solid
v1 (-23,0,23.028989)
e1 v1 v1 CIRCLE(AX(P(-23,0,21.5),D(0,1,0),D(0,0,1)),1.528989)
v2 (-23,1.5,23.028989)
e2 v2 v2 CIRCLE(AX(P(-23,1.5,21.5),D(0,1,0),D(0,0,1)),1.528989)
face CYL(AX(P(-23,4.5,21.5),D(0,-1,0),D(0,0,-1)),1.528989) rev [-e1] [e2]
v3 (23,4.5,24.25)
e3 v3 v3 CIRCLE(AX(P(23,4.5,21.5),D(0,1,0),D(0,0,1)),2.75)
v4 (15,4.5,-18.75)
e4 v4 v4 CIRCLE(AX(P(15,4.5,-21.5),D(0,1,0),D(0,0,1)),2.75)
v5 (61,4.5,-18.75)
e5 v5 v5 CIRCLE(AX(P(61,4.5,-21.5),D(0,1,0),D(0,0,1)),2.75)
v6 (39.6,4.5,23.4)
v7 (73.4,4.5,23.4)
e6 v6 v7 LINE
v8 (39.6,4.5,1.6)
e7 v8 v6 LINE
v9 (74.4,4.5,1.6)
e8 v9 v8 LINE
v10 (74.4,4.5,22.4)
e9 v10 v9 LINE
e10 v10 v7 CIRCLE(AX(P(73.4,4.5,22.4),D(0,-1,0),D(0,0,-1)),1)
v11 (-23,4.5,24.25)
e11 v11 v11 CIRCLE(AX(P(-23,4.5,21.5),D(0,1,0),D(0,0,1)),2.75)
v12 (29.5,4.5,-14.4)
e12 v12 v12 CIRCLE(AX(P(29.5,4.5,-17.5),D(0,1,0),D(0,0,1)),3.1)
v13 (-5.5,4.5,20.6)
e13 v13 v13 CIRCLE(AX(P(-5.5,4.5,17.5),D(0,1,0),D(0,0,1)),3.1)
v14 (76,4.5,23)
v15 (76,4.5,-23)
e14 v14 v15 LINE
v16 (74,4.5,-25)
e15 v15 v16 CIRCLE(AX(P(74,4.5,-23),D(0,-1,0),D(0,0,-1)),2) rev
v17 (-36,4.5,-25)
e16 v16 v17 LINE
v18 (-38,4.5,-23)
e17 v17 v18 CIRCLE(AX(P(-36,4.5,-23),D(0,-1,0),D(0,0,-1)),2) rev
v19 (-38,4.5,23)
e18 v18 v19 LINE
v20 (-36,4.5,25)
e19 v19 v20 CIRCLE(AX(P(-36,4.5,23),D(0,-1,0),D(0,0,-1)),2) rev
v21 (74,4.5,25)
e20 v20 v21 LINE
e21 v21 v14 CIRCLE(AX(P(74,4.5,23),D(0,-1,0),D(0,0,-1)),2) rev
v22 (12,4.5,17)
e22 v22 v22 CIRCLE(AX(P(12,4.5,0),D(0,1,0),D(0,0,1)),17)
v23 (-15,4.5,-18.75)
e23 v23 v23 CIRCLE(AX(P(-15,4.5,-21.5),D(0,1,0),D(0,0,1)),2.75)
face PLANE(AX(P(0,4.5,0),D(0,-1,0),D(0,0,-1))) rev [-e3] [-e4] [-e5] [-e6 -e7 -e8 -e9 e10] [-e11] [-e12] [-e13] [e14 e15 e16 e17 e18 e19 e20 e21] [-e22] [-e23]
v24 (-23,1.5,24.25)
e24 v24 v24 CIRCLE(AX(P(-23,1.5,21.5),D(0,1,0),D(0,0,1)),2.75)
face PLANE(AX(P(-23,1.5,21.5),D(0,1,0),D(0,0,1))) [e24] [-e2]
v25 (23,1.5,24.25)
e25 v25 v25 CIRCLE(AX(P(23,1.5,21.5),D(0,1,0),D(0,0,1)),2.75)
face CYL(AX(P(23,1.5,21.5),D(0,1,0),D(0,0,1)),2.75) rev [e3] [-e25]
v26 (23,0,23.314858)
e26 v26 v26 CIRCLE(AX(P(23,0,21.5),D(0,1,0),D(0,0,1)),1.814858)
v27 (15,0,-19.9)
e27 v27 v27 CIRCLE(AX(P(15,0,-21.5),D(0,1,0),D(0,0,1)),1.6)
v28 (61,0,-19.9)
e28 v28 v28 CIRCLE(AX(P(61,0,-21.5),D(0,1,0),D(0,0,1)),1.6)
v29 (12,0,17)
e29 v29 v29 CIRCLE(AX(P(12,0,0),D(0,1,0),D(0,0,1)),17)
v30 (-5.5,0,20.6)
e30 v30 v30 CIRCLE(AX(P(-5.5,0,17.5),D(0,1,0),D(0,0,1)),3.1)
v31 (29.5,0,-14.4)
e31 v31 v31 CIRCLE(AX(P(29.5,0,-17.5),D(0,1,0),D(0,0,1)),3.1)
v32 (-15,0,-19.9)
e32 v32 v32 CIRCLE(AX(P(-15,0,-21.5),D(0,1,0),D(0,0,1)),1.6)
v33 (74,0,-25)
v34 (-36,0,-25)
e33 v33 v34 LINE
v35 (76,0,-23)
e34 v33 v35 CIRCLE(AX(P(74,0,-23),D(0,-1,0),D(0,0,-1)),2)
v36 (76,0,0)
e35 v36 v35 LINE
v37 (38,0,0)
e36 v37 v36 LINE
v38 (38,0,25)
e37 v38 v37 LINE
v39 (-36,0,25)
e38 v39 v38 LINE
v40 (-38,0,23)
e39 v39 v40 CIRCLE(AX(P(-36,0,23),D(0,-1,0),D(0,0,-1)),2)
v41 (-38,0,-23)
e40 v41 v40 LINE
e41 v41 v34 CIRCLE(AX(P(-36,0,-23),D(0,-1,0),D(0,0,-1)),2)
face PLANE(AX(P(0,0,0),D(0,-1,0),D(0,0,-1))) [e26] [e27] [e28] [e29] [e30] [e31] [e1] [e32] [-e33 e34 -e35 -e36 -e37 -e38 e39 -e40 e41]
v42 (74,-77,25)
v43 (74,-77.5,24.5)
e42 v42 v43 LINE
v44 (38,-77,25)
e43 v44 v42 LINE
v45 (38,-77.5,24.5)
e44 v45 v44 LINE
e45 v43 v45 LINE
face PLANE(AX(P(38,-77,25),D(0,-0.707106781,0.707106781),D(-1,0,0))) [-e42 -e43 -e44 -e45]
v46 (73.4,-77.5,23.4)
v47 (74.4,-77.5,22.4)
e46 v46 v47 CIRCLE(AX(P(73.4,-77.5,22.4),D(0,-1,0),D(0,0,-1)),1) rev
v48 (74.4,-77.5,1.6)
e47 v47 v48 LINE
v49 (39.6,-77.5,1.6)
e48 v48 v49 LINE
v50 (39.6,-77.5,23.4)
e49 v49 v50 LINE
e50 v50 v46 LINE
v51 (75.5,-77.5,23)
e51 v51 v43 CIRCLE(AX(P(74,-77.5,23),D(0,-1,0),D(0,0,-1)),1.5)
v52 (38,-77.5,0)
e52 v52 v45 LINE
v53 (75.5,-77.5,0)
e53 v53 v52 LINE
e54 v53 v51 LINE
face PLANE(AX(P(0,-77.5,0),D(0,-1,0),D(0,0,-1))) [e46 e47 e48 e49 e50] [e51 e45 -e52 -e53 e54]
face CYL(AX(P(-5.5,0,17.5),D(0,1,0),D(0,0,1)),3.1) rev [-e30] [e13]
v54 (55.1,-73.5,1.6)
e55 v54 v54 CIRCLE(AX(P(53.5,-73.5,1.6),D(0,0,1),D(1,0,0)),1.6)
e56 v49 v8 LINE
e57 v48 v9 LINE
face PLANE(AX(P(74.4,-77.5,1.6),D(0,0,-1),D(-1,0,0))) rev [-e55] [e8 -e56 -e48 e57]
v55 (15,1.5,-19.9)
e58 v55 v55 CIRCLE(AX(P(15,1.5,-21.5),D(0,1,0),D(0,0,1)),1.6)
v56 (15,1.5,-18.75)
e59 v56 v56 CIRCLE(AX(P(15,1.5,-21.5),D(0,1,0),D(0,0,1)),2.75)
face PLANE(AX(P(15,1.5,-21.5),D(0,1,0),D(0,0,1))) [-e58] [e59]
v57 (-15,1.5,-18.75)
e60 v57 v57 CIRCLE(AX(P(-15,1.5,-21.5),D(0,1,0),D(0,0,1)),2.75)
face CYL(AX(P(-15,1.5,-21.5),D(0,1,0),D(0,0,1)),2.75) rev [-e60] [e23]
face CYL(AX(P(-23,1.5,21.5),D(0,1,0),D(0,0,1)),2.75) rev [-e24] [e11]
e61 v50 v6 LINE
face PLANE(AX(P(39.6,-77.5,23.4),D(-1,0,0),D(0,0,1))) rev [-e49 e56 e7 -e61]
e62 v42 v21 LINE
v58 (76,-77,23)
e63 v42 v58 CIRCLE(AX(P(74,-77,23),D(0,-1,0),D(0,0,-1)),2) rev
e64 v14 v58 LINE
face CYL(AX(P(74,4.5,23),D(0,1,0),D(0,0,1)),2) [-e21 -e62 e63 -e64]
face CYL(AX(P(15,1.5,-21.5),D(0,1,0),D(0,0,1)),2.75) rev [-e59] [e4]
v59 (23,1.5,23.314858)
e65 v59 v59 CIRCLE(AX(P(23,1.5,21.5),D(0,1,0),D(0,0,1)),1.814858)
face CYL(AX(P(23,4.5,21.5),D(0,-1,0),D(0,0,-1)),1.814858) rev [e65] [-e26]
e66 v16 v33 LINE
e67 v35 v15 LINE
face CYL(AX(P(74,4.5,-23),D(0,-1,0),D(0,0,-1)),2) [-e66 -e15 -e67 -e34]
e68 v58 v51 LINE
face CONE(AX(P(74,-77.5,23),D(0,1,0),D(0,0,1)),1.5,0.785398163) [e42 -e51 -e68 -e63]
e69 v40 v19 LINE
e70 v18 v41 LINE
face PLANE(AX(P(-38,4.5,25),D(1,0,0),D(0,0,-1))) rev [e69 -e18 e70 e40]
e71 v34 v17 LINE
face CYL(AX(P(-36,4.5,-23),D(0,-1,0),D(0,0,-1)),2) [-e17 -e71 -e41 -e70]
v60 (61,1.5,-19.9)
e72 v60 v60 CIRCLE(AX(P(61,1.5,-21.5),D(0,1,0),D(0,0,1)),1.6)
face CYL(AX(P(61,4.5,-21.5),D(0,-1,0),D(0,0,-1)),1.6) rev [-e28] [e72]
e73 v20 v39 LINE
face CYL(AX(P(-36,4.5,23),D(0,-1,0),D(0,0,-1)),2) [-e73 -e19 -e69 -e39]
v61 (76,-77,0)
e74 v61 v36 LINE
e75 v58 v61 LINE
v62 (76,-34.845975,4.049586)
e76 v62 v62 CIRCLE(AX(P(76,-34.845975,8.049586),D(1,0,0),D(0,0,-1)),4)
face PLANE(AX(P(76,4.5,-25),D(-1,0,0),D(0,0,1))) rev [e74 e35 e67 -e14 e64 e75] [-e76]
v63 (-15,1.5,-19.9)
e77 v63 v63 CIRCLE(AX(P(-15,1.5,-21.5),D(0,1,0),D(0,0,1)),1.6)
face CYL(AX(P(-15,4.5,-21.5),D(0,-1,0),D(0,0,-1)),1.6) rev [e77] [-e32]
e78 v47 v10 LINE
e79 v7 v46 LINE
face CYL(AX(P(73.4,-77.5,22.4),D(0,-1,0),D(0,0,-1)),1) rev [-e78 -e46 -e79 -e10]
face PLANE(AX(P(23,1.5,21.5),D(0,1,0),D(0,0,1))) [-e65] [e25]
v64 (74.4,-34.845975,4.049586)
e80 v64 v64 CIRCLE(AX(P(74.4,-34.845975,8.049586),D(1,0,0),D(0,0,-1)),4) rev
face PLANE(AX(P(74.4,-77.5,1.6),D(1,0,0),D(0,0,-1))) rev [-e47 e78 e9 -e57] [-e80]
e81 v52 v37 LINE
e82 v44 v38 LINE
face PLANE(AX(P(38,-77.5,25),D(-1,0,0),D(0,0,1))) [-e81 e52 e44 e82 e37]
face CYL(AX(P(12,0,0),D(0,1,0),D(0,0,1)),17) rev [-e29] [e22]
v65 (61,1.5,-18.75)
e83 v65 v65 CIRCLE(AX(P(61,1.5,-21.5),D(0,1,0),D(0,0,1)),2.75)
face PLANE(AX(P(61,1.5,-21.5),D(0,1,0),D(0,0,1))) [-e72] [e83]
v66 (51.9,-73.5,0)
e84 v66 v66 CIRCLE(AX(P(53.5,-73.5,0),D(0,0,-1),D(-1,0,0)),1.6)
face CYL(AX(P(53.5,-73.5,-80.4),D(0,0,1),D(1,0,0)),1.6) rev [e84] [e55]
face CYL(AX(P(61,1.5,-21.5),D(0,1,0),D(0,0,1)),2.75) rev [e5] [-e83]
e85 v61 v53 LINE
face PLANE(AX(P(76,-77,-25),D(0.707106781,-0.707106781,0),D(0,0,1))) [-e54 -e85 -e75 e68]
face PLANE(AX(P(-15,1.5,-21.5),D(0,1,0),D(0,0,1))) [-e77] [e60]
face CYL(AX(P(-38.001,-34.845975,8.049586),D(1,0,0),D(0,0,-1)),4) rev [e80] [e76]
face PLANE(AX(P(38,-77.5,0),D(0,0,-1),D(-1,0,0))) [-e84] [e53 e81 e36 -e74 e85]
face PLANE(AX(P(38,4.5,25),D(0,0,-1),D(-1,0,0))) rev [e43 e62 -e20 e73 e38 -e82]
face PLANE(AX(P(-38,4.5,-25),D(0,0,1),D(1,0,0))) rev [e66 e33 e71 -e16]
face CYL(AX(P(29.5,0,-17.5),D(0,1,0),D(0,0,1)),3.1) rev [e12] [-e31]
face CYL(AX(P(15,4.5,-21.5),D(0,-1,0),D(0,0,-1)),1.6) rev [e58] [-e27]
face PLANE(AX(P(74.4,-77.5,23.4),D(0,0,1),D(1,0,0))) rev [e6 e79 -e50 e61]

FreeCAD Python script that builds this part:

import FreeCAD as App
import Part
import Sketcher


def edges_at(feature, points):
    """Names of the edges that pass closest to the given points."""
    edges = feature.Shape.Edges
    near = lambda p: min(range(len(edges)), key=lambda i: edges[i].distToShape(Part.Vertex(*p))[0])
    return sorted({f"Edge{near(p) + 1}" for p in points})

doc = App.newDocument("Part")
body = doc.addObject("PartDesign::Body", "Body")

sketch1 = body.newObject("Sketcher::SketchObject", "Sketch")
sketch1.AttachmentSupport = (doc.getObject("XZ_Plane"), [""])
sketch1.MapMode = "FlatFace"
sketch1.addGeometry(Part.LineSegment(App.Vector(76, 0, 0), App.Vector(76, -25, 0)), False)
sketch1.addGeometry(Part.LineSegment(App.Vector(76, -25, 0), App.Vector(-38, -25, 0)), False)
sketch1.addGeometry(Part.LineSegment(App.Vector(-38, -25, 0), App.Vector(-38, 25, 0)), False)
sketch1.addGeometry(Part.LineSegment(App.Vector(-38, 25, 0), App.Vector(38, 25, 0)), False)
sketch1.addGeometry(Part.LineSegment(App.Vector(38, 25, 0), App.Vector(38, 0, 0)), False)
sketch1.addGeometry(Part.LineSegment(App.Vector(38, 0, 0), App.Vector(76, 0, 0)), False)
sketch1.addGeometry(Part.Circle(App.Vector(23, 21.5, 0), App.Vector(0, 0, 1), 1.8), False)
sketch1.addGeometry(Part.Circle(App.Vector(-23, 21.5, 0), App.Vector(0, 0, 1), 1.5), False)
sketch1.addGeometry(Part.Circle(App.Vector(61, -21.5, 0), App.Vector(0, 0, 1), 1.6), False)
sketch1.addGeometry(Part.Circle(App.Vector(15, -21.5, 0), App.Vector(0, 0, 1), 1.6), False)
sketch1.addGeometry(Part.Circle(App.Vector(-15, -21.5, 0), App.Vector(0, 0, 1), 1.6), False)
sketch1.addConstraint(Sketcher.Constraint("Coincident", 0, 2, 1, 1))
sketch1.addConstraint(Sketcher.Constraint("Coincident", 1, 2, 2, 1))
sketch1.addConstraint(Sketcher.Constraint("Coincident", 2, 2, 3, 1))
sketch1.addConstraint(Sketcher.Constraint("Coincident", 3, 2, 4, 1))
sketch1.addConstraint(Sketcher.Constraint("Coincident", 4, 2, 5, 1))
sketch1.addConstraint(Sketcher.Constraint("Coincident", 5, 2, 0, 1))
sketch1.addConstraint(Sketcher.Constraint("Vertical", 0))
sketch1.addConstraint(Sketcher.Constraint("Horizontal", 1))
sketch1.addConstraint(Sketcher.Constraint("Vertical", 2))
sketch1.addConstraint(Sketcher.Constraint("Horizontal", 3))
sketch1.addConstraint(Sketcher.Constraint("Vertical", 4))
sketch1.addConstraint(Sketcher.Constraint("Horizontal", 5))
sketch1.addConstraint(Sketcher.Constraint("Equal", 8, 9))
sketch1.addConstraint(Sketcher.Constraint("Equal", 9, 10))
sketch1.addConstraint(Sketcher.Constraint("Symmetric", 1, 2, 3, 2, -1, 1))
sketch1.addConstraint(Sketcher.Constraint("Symmetric", 6, 3, 7, 3, -2))
sketch1.addConstraint(Sketcher.Constraint("Symmetric", 9, 3, 10, 3, -2))
sketch1.addConstraint(Sketcher.Constraint("PointOnObject", 4, 2, -1))
sketch1.addConstraint(Sketcher.Constraint("Horizontal", 8, 3, 9, 3))
sketch1.addConstraint(Sketcher.Constraint("Diameter", 8, 3.2))
sketch1.addConstraint(Sketcher.Constraint("DistanceX", 1, 2, 1, 1, 114.0))
sketch1.addConstraint(Sketcher.Constraint("DistanceX", 3, 1, 3, 2, 76.0))
sketch1.addConstraint(Sketcher.Constraint("DistanceY", 0, 2, 0, 1, 25.0))
sketch1.addConstraint(Sketcher.Constraint("DistanceX", -1, 1, 6, 3, 23.0))
sketch1.addConstraint(Sketcher.Constraint("DistanceX", -1, 1, 8, 3, 61.0))
sketch1.addConstraint(Sketcher.Constraint("DistanceX", -1, 1, 9, 3, 15.0))
sketch1.addConstraint(Sketcher.Constraint("DistanceY", 8, 3, 6, 3, 43.0))
sketch1.addConstraint(Sketcher.Constraint("DistanceY", -1, 1, 6, 3, 21.5))
sketch1.addConstraint(Sketcher.Constraint("Diameter", 7, 3.057978))
sketch1.addConstraint(Sketcher.Constraint("Diameter", 6, 3.629717))
pad1 = body.newObject("PartDesign::Pad", "Pad")
pad1.Profile = sketch1
pad1.Length = 4.5
pad1.Reversed = True

sketch2 = body.newObject("Sketcher::SketchObject", "Sketch001")
sketch2.AttachmentSupport = (doc.getObject("XZ_Plane"), [""])
sketch2.MapMode = "FlatFace"
sketch2.AttachmentOffset = App.Placement(App.Vector(0, 0, -4.5), App.Rotation())
sketch2.addGeometry(Part.Circle(App.Vector(29.5, -17.5, 0), App.Vector(0, 0, 1), 3.1), False)
sketch2.addGeometry(Part.Circle(App.Vector(-5.5, 17.5, 0), App.Vector(0, 0, 1), 3.1), False)
sketch2.addGeometry(Part.Circle(App.Vector(12, 0, 0), App.Vector(0, 0, 1), 17), False)
sketch2.addConstraint(Sketcher.Constraint("Equal", 0, 1))
sketch2.addConstraint(Sketcher.Constraint("PointOnObject", 2, 3, -1))
sketch2.addConstraint(Sketcher.Constraint("Diameter", 2, 34.0))
sketch2.addConstraint(Sketcher.Constraint("Diameter", 0, 6.2))
sketch2.addConstraint(Sketcher.Constraint("DistanceX", -1, 1, 2, 3, 12.0))
sketch2.addConstraint(Sketcher.Constraint("DistanceX", 1, 3, 0, 3, 35.0))
sketch2.addConstraint(Sketcher.Constraint("DistanceY", 0, 3, 1, 3, 35.0))
sketch2.addConstraint(Sketcher.Constraint("DistanceX", -1, 1, 0, 3, 29.5))
sketch2.addConstraint(Sketcher.Constraint("DistanceY", 0, 3, -1, 1, 17.5))
pocket1 = body.newObject("PartDesign::Pocket", "Pocket")
pocket1.Profile = sketch2
pocket1.Type = "ThroughAll"
pocket1.Reversed = True

sketch3 = body.newObject("Sketcher::SketchObject", "Sketch002")
sketch3.AttachmentSupport = (doc.getObject("XZ_Plane"), [""])
sketch3.MapMode = "FlatFace"
sketch3.AttachmentOffset = App.Placement(App.Vector(0, 0, -4.5), App.Rotation())
sketch3.addGeometry(Part.Circle(App.Vector(-15, -21.5, 0), App.Vector(0, 0, 1), 2.8), False)
sketch3.addGeometry(Part.Circle(App.Vector(15, -21.5, 0), App.Vector(0, 0, 1), 2.8), False)
sketch3.addGeometry(Part.Circle(App.Vector(61, -21.5, 0), App.Vector(0, 0, 1), 2.8), False)
sketch3.addGeometry(Part.Circle(App.Vector(23, 21.5, 0), App.Vector(0, 0, 1), 2.8), False)
sketch3.addGeometry(Part.Circle(App.Vector(-23, 21.5, 0), App.Vector(0, 0, 1), 2.8), False)
sketch3.addConstraint(Sketcher.Constraint("Equal", 0, 1))
sketch3.addConstraint(Sketcher.Constraint("Equal", 1, 2))
sketch3.addConstraint(Sketcher.Constraint("Equal", 2, 3))
sketch3.addConstraint(Sketcher.Constraint("Equal", 3, 4))
sketch3.addConstraint(Sketcher.Constraint("Symmetric", 0, 3, 1, 3, -2))
sketch3.addConstraint(Sketcher.Constraint("Symmetric", 3, 3, 4, 3, -2))
sketch3.addConstraint(Sketcher.Constraint("Horizontal", 1, 3, 2, 3))
sketch3.addConstraint(Sketcher.Constraint("Diameter", 0, 5.5))
sketch3.addConstraint(Sketcher.Constraint("DistanceX", 0, 3, -1, 1, 15.0))
sketch3.addConstraint(Sketcher.Constraint("DistanceX", -1, 1, 2, 3, 61.0))
sketch3.addConstraint(Sketcher.Constraint("DistanceX", -1, 1, 3, 3, 23.0))
sketch3.addConstraint(Sketcher.Constraint("DistanceY", 1, 3, 3, 3, 43.0))
sketch3.addConstraint(Sketcher.Constraint("DistanceY", 0, 3, -1, 1, 21.5))
pocket2 = body.newObject("PartDesign::Pocket", "Pocket001")
pocket2.Profile = sketch3
pocket2.Length = 3
pocket2.Reversed = True

sketch4 = body.newObject("Sketcher::SketchObject", "Sketch003")
sketch4.AttachmentSupport = (doc.getObject("XZ_Plane"), [""])
sketch4.MapMode = "FlatFace"
sketch4.AttachmentOffset = App.Placement(App.Vector(0, 0, -4.5), App.Rotation())
sketch4.addGeometry(Part.LineSegment(App.Vector(38, 0, 0), App.Vector(38, 25, 0)), False)
sketch4.addGeometry(Part.LineSegment(App.Vector(38, 25, 0), App.Vector(76, 25, 0)), False)
sketch4.addGeometry(Part.LineSegment(App.Vector(76, 25, 0), App.Vector(76, 0, 0)), False)
sketch4.addGeometry(Part.LineSegment(App.Vector(76, 0, 0), App.Vector(38, 0, 0)), False)
sketch4.addGeometry(Part.LineSegment(App.Vector(74, 23, 0), App.Vector(40, 23, 0)), False)
sketch4.addGeometry(Part.LineSegment(App.Vector(40, 23, 0), App.Vector(40, 2, 0)), False)
sketch4.addGeometry(Part.LineSegment(App.Vector(40, 2, 0), App.Vector(74, 2, 0)), False)
sketch4.addGeometry(Part.LineSegment(App.Vector(74, 2, 0), App.Vector(74, 23, 0)), False)
sketch4.addConstraint(Sketcher.Constraint("Coincident", 0, 2, 1, 1))
sketch4.addConstraint(Sketcher.Constraint("Coincident", 1, 2, 2, 1))
sketch4.addConstraint(Sketcher.Constraint("Coincident", 2, 2, 3, 1))
sketch4.addConstraint(Sketcher.Constraint("Coincident", 3, 2, 0, 1))
sketch4.addConstraint(Sketcher.Constraint("Coincident", 4, 2, 5, 1))
sketch4.addConstraint(Sketcher.Constraint("Coincident", 5, 2, 6, 1))
sketch4.addConstraint(Sketcher.Constraint("Coincident", 6, 2, 7, 1))
sketch4.addConstraint(Sketcher.Constraint("Coincident", 7, 2, 4, 1))
sketch4.addConstraint(Sketcher.Constraint("Vertical", 0))
sketch4.addConstraint(Sketcher.Constraint("Horizontal", 1))
sketch4.addConstraint(Sketcher.Constraint("Vertical", 2))
sketch4.addConstraint(Sketcher.Constraint("Horizontal", 3))
sketch4.addConstraint(Sketcher.Constraint("Horizontal", 4))
sketch4.addConstraint(Sketcher.Constraint("Vertical", 5))
sketch4.addConstraint(Sketcher.Constraint("Horizontal", 6))
sketch4.addConstraint(Sketcher.Constraint("Vertical", 7))
sketch4.addConstraint(Sketcher.Constraint("PointOnObject", 2, 2, -1))
sketch4.addConstraint(Sketcher.Constraint("DistanceX", 1, 1, 1, 2, 38.0))
sketch4.addConstraint(Sketcher.Constraint("DistanceY", 0, 1, 0, 2, 25.0))
sketch4.addConstraint(Sketcher.Constraint("DistanceX", 4, 2, 4, 1, 34.8))
sketch4.addConstraint(Sketcher.Constraint("DistanceY", 5, 2, 5, 1, 21.8))
sketch4.addConstraint(Sketcher.Constraint("DistanceX", -1, 1, 0, 2, 38.0))
sketch4.addConstraint(Sketcher.Constraint("DistanceX", -1, 1, 4, 2, 39.6))
sketch4.addConstraint(Sketcher.Constraint("DistanceY", -1, 1, 4, 2, 23.4))
pad2 = body.newObject("PartDesign::Pad", "Pad001")
pad2.Profile = sketch4
pad2.Length = 82

sketch5 = body.newObject("Sketcher::SketchObject", "Sketch004")
sketch5.AttachmentSupport = (doc.getObject("XY_Plane"), [""])
sketch5.MapMode = "FlatFace"
sketch5.AttachmentOffset = App.Placement(App.Vector(0, 0, 1.6), App.Rotation())
sketch5.addGeometry(Part.Circle(App.Vector(53.5, -73.5, 0), App.Vector(0, 0, 1), 1.6), False)
sketch5.addConstraint(Sketcher.Constraint("Diameter", 0, 3.2))
sketch5.addConstraint(Sketcher.Constraint("DistanceX", -1, 1, 0, 3, 53.5))
sketch5.addConstraint(Sketcher.Constraint("DistanceY", 0, 3, -1, 1, 73.5))
pocket3 = body.newObject("PartDesign::Pocket", "Pocket002")
pocket3.Profile = sketch5
pocket3.Length = 82

sketch6 = body.newObject("Sketcher::SketchObject", "Sketch005")
sketch6.AttachmentSupport = (doc.getObject("YZ_Plane"), [""])
sketch6.MapMode = "FlatFace"
sketch6.AttachmentOffset = App.Placement(App.Vector(0, 0, 76), App.Rotation())
sketch6.addGeometry(Part.Circle(App.Vector(-34.8, 8, 0), App.Vector(0, 0, 1), 4), False)
sketch6.addConstraint(Sketcher.Constraint("Diameter", 0, 8.0))
sketch6.addConstraint(Sketcher.Constraint("DistanceX", 0, 3, -1, 1, 34.845975))
sketch6.addConstraint(Sketcher.Constraint("DistanceY", -1, 1, 0, 3, 8.049586))
pocket4 = body.newObject("PartDesign::Pocket", "Pocket003")
pocket4.Profile = sketch6
pocket4.Type = "UpToFirst"
doc.recompute()

fillet = body.newObject("PartDesign::Fillet", "Fillet")
fillet.Base = (pocket4, edges_at(pocket4, [
    (-38, 2.25, 25),
    (-38, 2.25, -25),
    (76, 2.25, -25),
    (76, -36.5, 25),
]))
fillet.Radius = 2
doc.recompute()

fillet2 = body.newObject("PartDesign::Fillet", "Fillet001")
fillet2.Base = (fillet, edges_at(fillet, [(74.4, -36.5, 23.4)]))
fillet2.Radius = 1
doc.recompute()

chamfer = body.newObject("PartDesign::Chamfer", "Chamfer")
chamfer.Base = (fillet2, edges_at(fillet2, [(76, -77.5, 11.5), (75.414, -77.5, 24.414), (56, -77.5, 25)]))
chamfer.Size = 0.5

doc.recompute()
